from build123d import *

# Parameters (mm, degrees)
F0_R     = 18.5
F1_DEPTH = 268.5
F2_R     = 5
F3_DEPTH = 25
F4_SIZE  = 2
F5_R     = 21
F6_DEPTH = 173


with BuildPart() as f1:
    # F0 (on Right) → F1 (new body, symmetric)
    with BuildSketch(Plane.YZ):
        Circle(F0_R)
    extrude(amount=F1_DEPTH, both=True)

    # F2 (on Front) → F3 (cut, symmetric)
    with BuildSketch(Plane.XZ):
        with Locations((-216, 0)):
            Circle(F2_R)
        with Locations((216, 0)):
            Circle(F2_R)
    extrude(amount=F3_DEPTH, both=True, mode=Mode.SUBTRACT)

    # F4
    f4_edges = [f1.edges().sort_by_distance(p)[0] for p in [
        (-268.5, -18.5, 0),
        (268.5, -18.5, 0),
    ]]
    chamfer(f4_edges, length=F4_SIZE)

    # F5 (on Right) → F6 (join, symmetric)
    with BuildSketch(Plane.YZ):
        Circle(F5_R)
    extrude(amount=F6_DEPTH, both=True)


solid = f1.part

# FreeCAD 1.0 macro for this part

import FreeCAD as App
import Part
import Sketcher

V = App.Vector
Q = App.Units.Quantity


def edges_at(feature, points):
    """Names of the edges that pass closest to the given points."""
    edges = feature.Shape.Edges
    near = lambda p: min(range(len(edges)), key=lambda i: edges[i].distToShape(Part.Vertex(*p))[0])
    return sorted({f"Edge{near(p) + 1}" for p in points})

doc = App.newDocument("Part")
params = doc.addObject("Spreadsheet::Sheet", "Params")
for row, (alias, value) in enumerate([
    ("sketch1_diameter", "37 mm"),
    ("pad1_length", "537 mm"),
    ("sketch2_diameter", "10 mm"),
    ("pocket1_length", "50 mm"),
    ("chamfer_size", "2 mm"),
    ("sketch3_diameter", "42 mm"),
    ("pad2_length", "346 mm"),
], start=1):
    params.set(f"A{row}", alias)
    params.set(f"B{row}", "=" + value)
    params.setAlias(f"B{row}", alias)

body = doc.addObject("PartDesign::Body", "Body")

# Sketch on YZ plane
sketch1 = body.newObject("Sketcher::SketchObject", "Sketch")
sketch1.AttachmentSupport = (doc.getObject("YZ_Plane"), [""])
sketch1.MapMode = "FlatFace"
sketch1.addGeometry(Part.Circle(V(0, 0, 0), V(0, 0, 1), 18.5), False)
sketch1.addConstraint(Sketcher.Constraint("Coincident", 0, 3, -1, 1))
sketch1.addConstraint(Sketcher.Constraint("Diameter", 0, Q("37 mm")))
sketch1.setExpression("Constraints[1]", "Params.sketch1_diameter")
pad1 = body.newObject("PartDesign::Pad", "Pad")
pad1.Profile = sketch1
pad1.setExpression("Length", "Params.pad1_length")
pad1.Midplane = True

# Sketch on XZ plane
sketch2 = body.newObject("Sketcher::SketchObject", "Sketch001")
sketch2.AttachmentSupport = (doc.getObject("XZ_Plane"), [""])
sketch2.MapMode = "FlatFace"
sketch2.addGeometry(Part.Circle(V(-216, 0, 0), V(0, 0, 1), 5), False)
sketch2.addGeometry(Part.Circle(V(216, 0, 0), V(0, 0, 1), 5), False)
sketch2.addConstraint(Sketcher.Constraint("Equal", 0, 1))
sketch2.addConstraint(Sketcher.Constraint("Symmetric", 0, 3, 1, 3, -1, 1))
sketch2.addConstraint(Sketcher.Constraint("PointOnObject", 0, 3, -1))
sketch2.addConstraint(Sketcher.Constraint("Diameter", 0, Q("10 mm")))
sketch2.addConstraint(Sketcher.Constraint("DistanceX", 0, 3, -1, 1, Q("216 mm")))
sketch2.setExpression("Constraints[3]", "Params.sketch2_diameter")
pocket1 = body.newObject("PartDesign::Pocket", "Pocket")
pocket1.Profile = sketch2
pocket1.setExpression("Length", "Params.pocket1_length")
pocket1.Midplane = True
doc.recompute()

chamfer = body.newObject("PartDesign::Chamfer", "Chamfer")
chamfer.Base = (pocket1, edges_at(pocket1, [(-268.5, -18.5, 0), (268.5, -18.5, 0)]))
chamfer.setExpression("Size", "Params.chamfer_size")

# Sketch on YZ plane
sketch3 = body.newObject("Sketcher::SketchObject", "Sketch002")
sketch3.AttachmentSupport = (doc.getObject("YZ_Plane"), [""])
sketch3.MapMode = "FlatFace"
sketch3.addGeometry(Part.Circle(V(0, 0, 0), V(0, 0, 1), 21), False)
sketch3.addConstraint(Sketcher.Constraint("Coincident", 0, 3, -1, 1))
sketch3.addConstraint(Sketcher.Constraint("Diameter", 0, Q("42 mm")))
sketch3.setExpression("Constraints[1]", "Params.sketch3_diameter")
pad2 = body.newObject("PartDesign::Pad", "Pad001")
pad2.Profile = sketch3
pad2.setExpression("Length", "Params.pad2_length")
pad2.Midplane = True

doc.recompute()
